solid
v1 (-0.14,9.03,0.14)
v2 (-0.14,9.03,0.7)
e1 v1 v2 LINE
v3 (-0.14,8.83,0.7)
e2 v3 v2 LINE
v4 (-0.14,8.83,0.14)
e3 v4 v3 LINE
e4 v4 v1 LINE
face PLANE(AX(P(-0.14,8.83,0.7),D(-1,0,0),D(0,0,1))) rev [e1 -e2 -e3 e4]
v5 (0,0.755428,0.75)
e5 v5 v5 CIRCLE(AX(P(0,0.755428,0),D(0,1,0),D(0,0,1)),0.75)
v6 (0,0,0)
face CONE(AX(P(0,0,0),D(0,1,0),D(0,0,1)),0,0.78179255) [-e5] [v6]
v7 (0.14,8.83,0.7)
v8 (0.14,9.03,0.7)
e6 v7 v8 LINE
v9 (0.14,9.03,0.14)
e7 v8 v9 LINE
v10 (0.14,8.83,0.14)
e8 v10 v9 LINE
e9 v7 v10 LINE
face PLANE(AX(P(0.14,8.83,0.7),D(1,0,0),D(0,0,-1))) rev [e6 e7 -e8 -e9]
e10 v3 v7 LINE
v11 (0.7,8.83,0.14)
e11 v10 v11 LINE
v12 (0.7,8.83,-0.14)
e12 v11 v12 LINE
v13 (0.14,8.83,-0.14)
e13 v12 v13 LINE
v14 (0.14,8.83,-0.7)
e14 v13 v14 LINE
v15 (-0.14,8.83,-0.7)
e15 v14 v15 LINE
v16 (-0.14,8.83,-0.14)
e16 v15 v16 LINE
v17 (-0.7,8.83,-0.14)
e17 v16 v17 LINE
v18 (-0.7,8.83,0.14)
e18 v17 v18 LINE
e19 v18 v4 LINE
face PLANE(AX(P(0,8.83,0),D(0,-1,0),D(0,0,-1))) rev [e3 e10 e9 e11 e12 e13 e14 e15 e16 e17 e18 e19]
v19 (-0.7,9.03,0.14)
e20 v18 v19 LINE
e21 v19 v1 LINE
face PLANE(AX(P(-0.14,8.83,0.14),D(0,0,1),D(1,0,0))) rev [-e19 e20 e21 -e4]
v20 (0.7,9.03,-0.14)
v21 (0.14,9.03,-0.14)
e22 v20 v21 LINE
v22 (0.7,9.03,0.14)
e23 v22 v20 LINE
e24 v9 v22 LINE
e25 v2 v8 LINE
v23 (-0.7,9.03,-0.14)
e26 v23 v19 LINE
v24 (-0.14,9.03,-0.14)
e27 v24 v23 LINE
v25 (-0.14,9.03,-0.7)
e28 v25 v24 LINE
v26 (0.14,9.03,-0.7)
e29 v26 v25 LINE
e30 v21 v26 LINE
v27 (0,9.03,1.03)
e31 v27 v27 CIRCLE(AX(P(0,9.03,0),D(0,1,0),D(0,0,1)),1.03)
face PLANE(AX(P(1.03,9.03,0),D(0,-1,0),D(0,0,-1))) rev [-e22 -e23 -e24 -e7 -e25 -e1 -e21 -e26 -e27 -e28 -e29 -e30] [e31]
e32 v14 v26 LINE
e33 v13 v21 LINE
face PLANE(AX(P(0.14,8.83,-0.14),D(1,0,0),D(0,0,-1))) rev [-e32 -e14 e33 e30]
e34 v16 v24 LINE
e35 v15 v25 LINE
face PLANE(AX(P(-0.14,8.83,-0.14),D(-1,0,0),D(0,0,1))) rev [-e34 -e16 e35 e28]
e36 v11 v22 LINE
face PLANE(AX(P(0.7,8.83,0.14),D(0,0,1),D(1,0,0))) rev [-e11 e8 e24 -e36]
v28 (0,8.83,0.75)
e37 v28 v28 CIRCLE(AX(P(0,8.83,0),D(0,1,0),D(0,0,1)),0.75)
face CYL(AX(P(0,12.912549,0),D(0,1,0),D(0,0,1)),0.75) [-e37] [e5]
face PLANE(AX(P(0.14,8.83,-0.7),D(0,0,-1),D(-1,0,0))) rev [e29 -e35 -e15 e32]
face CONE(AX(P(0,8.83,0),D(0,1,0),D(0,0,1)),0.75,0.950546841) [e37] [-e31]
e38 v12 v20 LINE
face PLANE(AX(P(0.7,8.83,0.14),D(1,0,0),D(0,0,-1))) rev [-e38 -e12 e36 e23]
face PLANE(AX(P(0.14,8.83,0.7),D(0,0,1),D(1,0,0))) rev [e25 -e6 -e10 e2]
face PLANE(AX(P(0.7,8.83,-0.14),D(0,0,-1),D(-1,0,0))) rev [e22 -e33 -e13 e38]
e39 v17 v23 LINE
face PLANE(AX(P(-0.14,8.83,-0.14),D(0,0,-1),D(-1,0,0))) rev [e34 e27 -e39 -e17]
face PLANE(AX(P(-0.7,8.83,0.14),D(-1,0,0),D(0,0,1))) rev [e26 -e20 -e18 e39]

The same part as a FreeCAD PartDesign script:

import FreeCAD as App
import Part
import Sketcher
from FreeCAD import Vector
Q = App.Units.Quantity


def add_polygon(sketch, points):
    """Adds a closed chain of lines whose ends are joined by coincident constraints."""
    first, n = sketch.GeometryCount, len(points)
    for a, b in zip(points, points[1:] + points[:1]):
        sketch.addGeometry(Part.LineSegment(App.Vector(*a, 0), App.Vector(*b, 0)), False)
    for i in range(n):
        sketch.addConstraint(Sketcher.Constraint("Coincident", first + i, 2, first + (i + 1) % n, 1))

doc = App.newDocument("Part")
body = doc.addObject("PartDesign::Body", "Body")

# Sketch on XY plane
sketch1 = body.newObject("Sketcher::SketchObject", "Sketch")
sketch1.AttachmentSupport = (doc.getObject("XY_Plane"), [""])
sketch1.MapMode = "FlatFace"
add_polygon(sketch1, [(0, 0), (0.75, 0.76), (0.75, 8.83), (1.03, 9.03), (0, 9.03)])  # lines 0-4
sketch1.addConstraint(Sketcher.Constraint("Vertical", 1))
sketch1.addConstraint(Sketcher.Constraint("Horizontal", 3))
sketch1.addConstraint(Sketcher.Constraint("Vertical", 4))
sketch1.addConstraint(Sketcher.Constraint("Coincident", 4, 2, -1, 1))
sketch1.addConstraint(Sketcher.Constraint("DistanceX", 3, 2, 3, 1, Q("1.03 mm")))
sketch1.addConstraint(Sketcher.Constraint("DistanceY", 4, 2, 4, 1, Q("9.03 mm")))
sketch1.addConstraint(Sketcher.Constraint("DistanceY", 1, 2, 2, 2, Q("0.2 mm")))
sketch1.addConstraint(Sketcher.Constraint("DistanceX", -1, 1, 0, 2, Q("0.75 mm")))
sketch1.addConstraint(Sketcher.Constraint("DistanceY", 1, 1, 1, 2, Q("8.074572 mm")))
revolution = body.newObject("PartDesign::Revolution", "Revolution")
revolution.Profile = sketch1
revolution.ReferenceAxis = (sketch1, ["V_Axis"])
revolution.Angle = 360

# Sketch on XZ plane
sketch2 = body.newObject("Sketcher::SketchObject", "Sketch001")
sketch2.AttachmentSupport = (doc.getObject("XZ_Plane"), [""])
sketch2.MapMode = "FlatFace"
sketch2.AttachmentOffset = App.Placement(Vector(0, 0, -9.03), App.Rotation())
add_polygon(sketch2, [(-0.14, -0.7), (-0.14, -0.14), (-0.7, -0.14), (-0.7, 0.14), (-0.14, 0.14), (-0.14, 0.7), (0.14, 0.7), (0.14, 0.14), (0.7, 0.14), (0.7, -0.14), (0.14, -0.14), (0.14, -0.7)])  # lines 0-11
sketch2.addConstraint(Sketcher.Constraint("Vertical", 0))
sketch2.addConstraint(Sketcher.Constraint("Horizontal", 1))
sketch2.addConstraint(Sketcher.Constraint("Vertical", 2))
sketch2.addConstraint(Sketcher.Constraint("Horizontal", 3))
sketch2.addConstraint(Sketcher.Constraint("Vertical", 4))
sketch2.addConstraint(Sketcher.Constraint("Horizontal", 5))
sketch2.addConstraint(Sketcher.Constraint("Vertical", 6))
sketch2.addConstraint(Sketcher.Constraint("Horizontal", 7))
sketch2.addConstraint(Sketcher.Constraint("Vertical", 8))
sketch2.addConstraint(Sketcher.Constraint("Horizontal", 9))
sketch2.addConstraint(Sketcher.Constraint("Vertical", 10))
sketch2.addConstraint(Sketcher.Constraint("Horizontal", 11))
sketch2.addConstraint(Sketcher.Constraint("Symmetric", 0, 2, 6, 2, -1, 1))
sketch2.addConstraint(Sketcher.Constraint("Symmetric", 2, 2, 8, 2, -1, 1))
sketch2.addConstraint(Sketcher.Constraint("Symmetric", 4, 2, 10, 2, -1, 1))
sketch2.addConstraint(Sketcher.Constraint("Symmetric", 3, 2, 6, 2, -2))
sketch2.addConstraint(Sketcher.Constraint("Equal", 9, 0))
sketch2.addConstraint(Sketcher.Constraint("Equal", 11, 2))
sketch2.addConstraint(Sketcher.Constraint("DistanceX", 1, 2, 1, 1, Q("0.56 mm")))
sketch2.addConstraint(Sketcher.Constraint("DistanceX", 5, 1, 5, 2, Q("0.28 mm")))
pocket1 = body.newObject("PartDesign::Pocket", "Pocket")
pocket1.Profile = sketch2
pocket1.Length = 0.2
pocket1.Reversed = True

doc.recompute()
